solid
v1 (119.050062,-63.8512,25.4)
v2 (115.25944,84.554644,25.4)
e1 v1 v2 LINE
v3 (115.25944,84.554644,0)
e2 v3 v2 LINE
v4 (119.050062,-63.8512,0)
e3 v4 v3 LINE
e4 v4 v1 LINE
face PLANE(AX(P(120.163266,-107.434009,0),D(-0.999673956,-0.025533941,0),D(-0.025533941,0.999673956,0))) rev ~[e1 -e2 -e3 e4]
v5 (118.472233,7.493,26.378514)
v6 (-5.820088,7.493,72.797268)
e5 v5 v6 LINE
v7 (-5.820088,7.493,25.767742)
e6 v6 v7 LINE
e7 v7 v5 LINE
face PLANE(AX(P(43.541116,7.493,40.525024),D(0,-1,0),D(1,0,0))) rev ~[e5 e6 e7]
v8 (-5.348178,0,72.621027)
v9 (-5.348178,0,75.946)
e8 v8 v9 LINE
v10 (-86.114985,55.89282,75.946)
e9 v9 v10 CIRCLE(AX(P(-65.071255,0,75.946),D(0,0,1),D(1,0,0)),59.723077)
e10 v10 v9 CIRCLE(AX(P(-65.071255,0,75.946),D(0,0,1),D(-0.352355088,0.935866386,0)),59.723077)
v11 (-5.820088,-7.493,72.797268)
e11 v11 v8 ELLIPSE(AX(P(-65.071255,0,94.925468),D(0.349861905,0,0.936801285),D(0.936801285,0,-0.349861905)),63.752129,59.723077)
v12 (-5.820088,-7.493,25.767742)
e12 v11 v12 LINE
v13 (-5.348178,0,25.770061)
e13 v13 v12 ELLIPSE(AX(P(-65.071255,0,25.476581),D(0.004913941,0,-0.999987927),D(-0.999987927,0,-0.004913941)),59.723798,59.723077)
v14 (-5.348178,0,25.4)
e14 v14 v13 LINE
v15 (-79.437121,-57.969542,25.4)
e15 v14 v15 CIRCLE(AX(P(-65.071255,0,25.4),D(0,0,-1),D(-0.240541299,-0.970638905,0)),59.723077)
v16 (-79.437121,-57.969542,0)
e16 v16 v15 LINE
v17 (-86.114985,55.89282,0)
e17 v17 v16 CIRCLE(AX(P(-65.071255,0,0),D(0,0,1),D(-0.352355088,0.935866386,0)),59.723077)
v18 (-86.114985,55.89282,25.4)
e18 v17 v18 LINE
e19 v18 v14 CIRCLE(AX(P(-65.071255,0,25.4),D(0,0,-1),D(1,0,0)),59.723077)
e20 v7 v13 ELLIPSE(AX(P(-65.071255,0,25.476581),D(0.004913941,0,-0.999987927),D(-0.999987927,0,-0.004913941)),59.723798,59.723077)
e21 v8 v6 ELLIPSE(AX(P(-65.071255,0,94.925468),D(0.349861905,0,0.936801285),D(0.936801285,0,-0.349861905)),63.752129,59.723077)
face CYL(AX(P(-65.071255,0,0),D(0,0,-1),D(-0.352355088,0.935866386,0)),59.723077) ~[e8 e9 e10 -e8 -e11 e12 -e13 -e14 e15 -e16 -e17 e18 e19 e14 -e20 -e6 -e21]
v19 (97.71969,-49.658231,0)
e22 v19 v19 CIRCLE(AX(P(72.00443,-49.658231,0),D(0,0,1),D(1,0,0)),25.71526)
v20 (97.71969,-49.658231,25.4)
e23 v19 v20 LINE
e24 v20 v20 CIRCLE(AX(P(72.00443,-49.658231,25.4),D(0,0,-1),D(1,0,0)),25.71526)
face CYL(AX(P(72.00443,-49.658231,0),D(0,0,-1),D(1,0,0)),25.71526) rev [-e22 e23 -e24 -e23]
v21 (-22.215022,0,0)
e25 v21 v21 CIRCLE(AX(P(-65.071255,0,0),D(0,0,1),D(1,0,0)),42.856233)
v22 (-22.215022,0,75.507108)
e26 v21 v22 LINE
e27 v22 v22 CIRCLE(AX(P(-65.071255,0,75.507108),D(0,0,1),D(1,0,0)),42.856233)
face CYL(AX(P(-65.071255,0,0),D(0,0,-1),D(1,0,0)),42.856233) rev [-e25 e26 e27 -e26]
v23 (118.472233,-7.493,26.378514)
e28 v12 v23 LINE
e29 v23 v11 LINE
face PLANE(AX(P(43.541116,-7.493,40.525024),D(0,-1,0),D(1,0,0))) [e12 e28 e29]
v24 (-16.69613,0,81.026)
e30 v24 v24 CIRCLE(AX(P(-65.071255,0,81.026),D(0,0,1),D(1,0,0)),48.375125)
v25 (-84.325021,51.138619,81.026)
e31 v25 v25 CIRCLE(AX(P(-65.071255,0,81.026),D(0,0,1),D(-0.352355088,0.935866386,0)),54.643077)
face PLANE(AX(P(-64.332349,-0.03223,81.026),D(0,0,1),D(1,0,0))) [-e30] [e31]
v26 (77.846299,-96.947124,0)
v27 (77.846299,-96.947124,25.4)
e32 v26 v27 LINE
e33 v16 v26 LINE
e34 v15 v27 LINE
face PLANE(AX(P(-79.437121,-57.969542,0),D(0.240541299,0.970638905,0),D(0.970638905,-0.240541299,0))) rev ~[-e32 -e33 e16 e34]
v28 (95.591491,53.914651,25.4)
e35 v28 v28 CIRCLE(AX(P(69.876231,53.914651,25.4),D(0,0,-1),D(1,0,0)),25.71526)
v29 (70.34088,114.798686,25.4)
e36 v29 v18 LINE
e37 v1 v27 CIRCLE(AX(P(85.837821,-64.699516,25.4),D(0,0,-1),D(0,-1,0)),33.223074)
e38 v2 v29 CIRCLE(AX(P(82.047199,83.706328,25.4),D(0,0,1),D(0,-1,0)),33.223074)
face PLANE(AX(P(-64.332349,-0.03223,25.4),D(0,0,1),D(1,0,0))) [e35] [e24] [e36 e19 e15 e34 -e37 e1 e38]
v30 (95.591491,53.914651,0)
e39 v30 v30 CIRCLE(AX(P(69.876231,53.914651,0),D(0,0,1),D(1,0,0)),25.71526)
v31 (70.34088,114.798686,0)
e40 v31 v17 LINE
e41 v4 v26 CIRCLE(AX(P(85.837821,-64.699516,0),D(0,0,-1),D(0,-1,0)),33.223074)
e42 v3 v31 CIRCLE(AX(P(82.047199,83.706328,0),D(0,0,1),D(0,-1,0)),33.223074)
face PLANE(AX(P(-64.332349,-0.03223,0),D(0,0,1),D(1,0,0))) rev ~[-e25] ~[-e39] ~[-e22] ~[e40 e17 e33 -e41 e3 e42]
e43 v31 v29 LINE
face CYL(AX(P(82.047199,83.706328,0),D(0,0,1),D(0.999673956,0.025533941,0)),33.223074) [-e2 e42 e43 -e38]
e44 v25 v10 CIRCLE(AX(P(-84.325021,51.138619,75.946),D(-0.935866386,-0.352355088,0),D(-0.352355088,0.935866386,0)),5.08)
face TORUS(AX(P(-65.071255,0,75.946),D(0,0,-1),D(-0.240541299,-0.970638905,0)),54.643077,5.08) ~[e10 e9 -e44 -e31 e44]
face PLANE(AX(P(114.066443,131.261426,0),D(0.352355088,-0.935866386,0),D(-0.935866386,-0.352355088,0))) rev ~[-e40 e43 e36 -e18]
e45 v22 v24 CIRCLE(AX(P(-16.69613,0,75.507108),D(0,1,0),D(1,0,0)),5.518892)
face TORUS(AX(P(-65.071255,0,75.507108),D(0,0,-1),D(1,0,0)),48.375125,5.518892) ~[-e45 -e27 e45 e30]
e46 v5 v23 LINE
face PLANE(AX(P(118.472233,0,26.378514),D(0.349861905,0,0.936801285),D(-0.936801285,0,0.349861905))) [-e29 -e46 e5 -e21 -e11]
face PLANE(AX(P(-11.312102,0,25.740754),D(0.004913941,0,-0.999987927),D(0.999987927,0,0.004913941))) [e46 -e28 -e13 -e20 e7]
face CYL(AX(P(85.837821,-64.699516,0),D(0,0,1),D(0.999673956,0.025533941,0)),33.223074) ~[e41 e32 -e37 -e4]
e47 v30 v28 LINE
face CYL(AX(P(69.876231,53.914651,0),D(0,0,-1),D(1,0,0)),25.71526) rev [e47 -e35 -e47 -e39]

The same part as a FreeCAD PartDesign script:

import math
import FreeCAD as App
import Part
import Sketcher

V = App.Vector


def edges_at(feature, points):
    """Names of the edges that pass closest to the given points."""
    edges = feature.Shape.Edges
    near = lambda p: min(range(len(edges)), key=lambda i: edges[i].distToShape(Part.Vertex(*p))[0])
    return sorted({f"Edge{near(p) + 1}" for p in points})

doc = App.newDocument("Part")
params = doc.addObject("Spreadsheet::Sheet", "Params")
for row, (alias, value) in enumerate([
    ("pad1_length", "1 in"),
    ("pad2_length", "3.19 in"),
    ("fillet_radius", "33.223074 mm"),
    ("fillet2_radius", "5.518892 mm"),
    ("fillet3_radius", "0.2 in"),
    ("pocket1_length", "2.33 in"),
    ("pad3_length", "0.59 in"),
], start=1):
    params.set(f"A{row}", alias)
    params.set(f"B{row}", "=" + value)
    params.setAlias(f"B{row}", alias)

body = doc.addObject("PartDesign::Body", "Body")

sketch1 = body.newObject("Sketcher::SketchObject", "Sketch")
sketch1.AttachmentSupport = (doc.getObject("XY_Plane"), [""])
sketch1.MapMode = "FlatFace"
sketch1.addGeometry(Part.ArcOfCircle(Part.Circle(V(-65.071255, 0, 0), V(0, 0, 1), 59.723077), math.radians(110.631431), math.radians(256.08151)), False)
sketch1.addGeometry(Part.LineSegment(V(-79.437121, -57.969542, 0), V(120.163266, -107.434009, 0)), False)
sketch1.addGeometry(Part.LineSegment(V(120.163266, -107.434009, 0), V(114.066443, 131.261426, 0)), False)
sketch1.addGeometry(Part.LineSegment(V(114.066443, 131.261426, 0), V(-86.114985, 55.89282, 0)), False)
sketch1.addGeometry(Part.Circle(V(-65.071255, 0, 0), V(0, 0, 1), 42.856233), False)
sketch1.addConstraint(Sketcher.Constraint("Tangent", 0, 2, 1, 1))
sketch1.addConstraint(Sketcher.Constraint("Coincident", 1, 2, 2, 1))
sketch1.addConstraint(Sketcher.Constraint("Coincident", 2, 2, 3, 1))
sketch1.addConstraint(Sketcher.Constraint("Tangent", 3, 2, 0, 1))
sketch1.addConstraint(Sketcher.Constraint("Coincident", 4, 3, 0, 3))
sketch1.addConstraint(Sketcher.Constraint("PointOnObject", 0, 3, -1))
sketch1.addConstraint(Sketcher.Constraint("Diameter", 4, 85.712466))
sketch1.addConstraint(Sketcher.Constraint("Radius", 0, 59.723077))
sketch1.addConstraint(Sketcher.Constraint("DistanceX", 0, 3, 2, 2, 179.137698))
sketch1.addConstraint(Sketcher.Constraint("Distance", 1, 205.638149))
sketch1.addConstraint(Sketcher.Constraint("Distance", 3, 213.899581))
sketch1.addConstraint(Sketcher.Constraint("DistanceX", 0, 2, -1, 1, 79.437121))
sketch1.addConstraint(Sketcher.Constraint("DistanceY", 0, 2, -1, 1, 57.969542))
pad1 = body.newObject("PartDesign::Pad", "Pad")
pad1.Profile = sketch1
pad1.setExpression("Length", "Params.pad1_length")

sketch2 = body.newObject("Sketcher::SketchObject", "Sketch001")
sketch2.AttachmentSupport = (doc.getObject("XY_Plane"), [""])
sketch2.MapMode = "FlatFace"
sketch2.addGeometry(Part.ArcOfCircle(Part.Circle(V(-65.071255, 0, 0), V(0, 0, 1), 59.723077), math.radians(-103.91849), math.radians(0)), False)
sketch2.addGeometry(Part.ArcOfCircle(Part.Circle(V(-65.071255, 0, 0), V(0, 0, 1), 59.723077), math.radians(0), math.radians(110.631431)), False)
sketch2.addGeometry(Part.ArcOfCircle(Part.Circle(V(-65.071255, 0, 0), V(0, 0, 1), 59.723077), math.radians(110.631431), math.radians(256.08151)), False)
sketch2.addGeometry(Part.Circle(V(-65.071255, 0, 0), V(0, 0, 1), 42.856233), False)
sketch2.addConstraint(Sketcher.Constraint("Tangent", 0, 2, 1, 1))
sketch2.addConstraint(Sketcher.Constraint("Tangent", 1, 2, 2, 1))
sketch2.addConstraint(Sketcher.Constraint("Tangent", 2, 2, 0, 1))
sketch2.addConstraint(Sketcher.Constraint("Coincident", 3, 3, 0, 3))
sketch2.addConstraint(Sketcher.Constraint("PointOnObject", 0, 3, -1))
sketch2.addConstraint(Sketcher.Constraint("PointOnObject", 0, 2, -1))
sketch2.addConstraint(Sketcher.Constraint("Diameter", 3, 85.712466))
sketch2.addConstraint(Sketcher.Constraint("Radius", 0, 59.723077))
sketch2.addConstraint(Sketcher.Constraint("DistanceX", 0, 2, -1, 1, 5.348178))
sketch2.addConstraint(Sketcher.Constraint("DistanceY", -1, 1, 1, 2, 55.89282))
sketch2.addConstraint(Sketcher.Constraint("DistanceX", 2, 2, -1, 1, 79.437121))
pad2 = body.newObject("PartDesign::Pad", "Pad001")
pad2.Profile = sketch2
pad2.setExpression("Length", "Params.pad2_length")
doc.recompute()

fillet = body.newObject("PartDesign::Fillet", "Fillet")
fillet.Base = (pad2, edges_at(pad2, [(120.163, -107.434, 12.7), (114.066, 131.261, 12.7)]))
fillet.setExpression("Radius", "Params.fillet_radius")
doc.recompute()

fillet2 = body.newObject("PartDesign::Fillet", "Fillet001")
fillet2.Base = (fillet, edges_at(fillet, [(-107.927, 0, 81.026)]))
fillet2.setExpression("Radius", "Params.fillet2_radius")
doc.recompute()

fillet3 = body.newObject("PartDesign::Fillet", "Fillet002")
fillet3.Base = (fillet2, edges_at(fillet2, [(-28.269, -47.036, 81.026)]))
fillet3.setExpression("Radius", "Params.fillet3_radius")

sketch3 = body.newObject("Sketcher::SketchObject", "Sketch002")
sketch3.AttachmentSupport = (doc.getObject("XY_Plane"), [""])
sketch3.MapMode = "FlatFace"
sketch3.addGeometry(Part.Circle(V(72.00443, -49.658231, 0), V(0, 0, 1), 25.71526), False)
sketch3.addGeometry(Part.Circle(V(69.876231, 53.914651, 0), V(0, 0, 1), 25.71526), False)
sketch3.addConstraint(Sketcher.Constraint("Equal", 0, 1))
sketch3.addConstraint(Sketcher.Constraint("Diameter", 0, 51.43052))
sketch3.addConstraint(Sketcher.Constraint("DistanceX", 1, 3, 0, 3, 2.128199))
sketch3.addConstraint(Sketcher.Constraint("DistanceX", -1, 1, 0, 3, 72.00443))
sketch3.addConstraint(Sketcher.Constraint("DistanceY", 0, 3, -1, 1, 49.658231))
sketch3.addConstraint(Sketcher.Constraint("DistanceY", -1, 1, 1, 3, 53.914651))
pocket1 = body.newObject("PartDesign::Pocket", "Pocket")
pocket1.Profile = sketch3
pocket1.setExpression("Length", "Params.pocket1_length")
pocket1.Reversed = True

sketch4 = body.newObject("Sketcher::SketchObject", "Sketch003")
sketch4.AttachmentSupport = (doc.getObject("XZ_Plane"), [""])
sketch4.MapMode = "FlatFace"
sketch4.addGeometry(Part.LineSegment(V(-11.312102, 25.740754, 0), V(118.472233, 26.378514, 0)), False)
sketch4.addGeometry(Part.LineSegment(V(118.472233, 26.378514, 0), V(-11.312102, 74.84834, 0)), False)
sketch4.addGeometry(Part.LineSegment(V(-11.312102, 74.84834, 0), V(-11.312102, 25.740754, 0)), False)
sketch4.addConstraint(Sketcher.Constraint("Coincident", 0, 2, 1, 1))
sketch4.addConstraint(Sketcher.Constraint("Coincident", 1, 2, 2, 1))
sketch4.addConstraint(Sketcher.Constraint("Coincident", 2, 2, 0, 1))
sketch4.addConstraint(Sketcher.Constraint("Vertical", 2))
sketch4.addConstraint(Sketcher.Constraint("DistanceX", 1, 2, -1, 1, 11.312102))
sketch4.addConstraint(Sketcher.Constraint("DistanceY", 2, 2, 2, 1, 49.107586))
sketch4.addConstraint(Sketcher.Constraint("DistanceY", -1, 1, 1, 2, 74.84834))
sketch4.addConstraint(Sketcher.Constraint("DistanceY", 2, 2, 0, 2, 0.63776))
sketch4.addConstraint(Sketcher.Constraint("Distance", 0, 129.785902))
pad3 = body.newObject("PartDesign::Pad", "Pad002")
pad3.Profile = sketch4
pad3.setExpression("Length", "Params.pad3_length")
pad3.Midplane = True

doc.recompute()
